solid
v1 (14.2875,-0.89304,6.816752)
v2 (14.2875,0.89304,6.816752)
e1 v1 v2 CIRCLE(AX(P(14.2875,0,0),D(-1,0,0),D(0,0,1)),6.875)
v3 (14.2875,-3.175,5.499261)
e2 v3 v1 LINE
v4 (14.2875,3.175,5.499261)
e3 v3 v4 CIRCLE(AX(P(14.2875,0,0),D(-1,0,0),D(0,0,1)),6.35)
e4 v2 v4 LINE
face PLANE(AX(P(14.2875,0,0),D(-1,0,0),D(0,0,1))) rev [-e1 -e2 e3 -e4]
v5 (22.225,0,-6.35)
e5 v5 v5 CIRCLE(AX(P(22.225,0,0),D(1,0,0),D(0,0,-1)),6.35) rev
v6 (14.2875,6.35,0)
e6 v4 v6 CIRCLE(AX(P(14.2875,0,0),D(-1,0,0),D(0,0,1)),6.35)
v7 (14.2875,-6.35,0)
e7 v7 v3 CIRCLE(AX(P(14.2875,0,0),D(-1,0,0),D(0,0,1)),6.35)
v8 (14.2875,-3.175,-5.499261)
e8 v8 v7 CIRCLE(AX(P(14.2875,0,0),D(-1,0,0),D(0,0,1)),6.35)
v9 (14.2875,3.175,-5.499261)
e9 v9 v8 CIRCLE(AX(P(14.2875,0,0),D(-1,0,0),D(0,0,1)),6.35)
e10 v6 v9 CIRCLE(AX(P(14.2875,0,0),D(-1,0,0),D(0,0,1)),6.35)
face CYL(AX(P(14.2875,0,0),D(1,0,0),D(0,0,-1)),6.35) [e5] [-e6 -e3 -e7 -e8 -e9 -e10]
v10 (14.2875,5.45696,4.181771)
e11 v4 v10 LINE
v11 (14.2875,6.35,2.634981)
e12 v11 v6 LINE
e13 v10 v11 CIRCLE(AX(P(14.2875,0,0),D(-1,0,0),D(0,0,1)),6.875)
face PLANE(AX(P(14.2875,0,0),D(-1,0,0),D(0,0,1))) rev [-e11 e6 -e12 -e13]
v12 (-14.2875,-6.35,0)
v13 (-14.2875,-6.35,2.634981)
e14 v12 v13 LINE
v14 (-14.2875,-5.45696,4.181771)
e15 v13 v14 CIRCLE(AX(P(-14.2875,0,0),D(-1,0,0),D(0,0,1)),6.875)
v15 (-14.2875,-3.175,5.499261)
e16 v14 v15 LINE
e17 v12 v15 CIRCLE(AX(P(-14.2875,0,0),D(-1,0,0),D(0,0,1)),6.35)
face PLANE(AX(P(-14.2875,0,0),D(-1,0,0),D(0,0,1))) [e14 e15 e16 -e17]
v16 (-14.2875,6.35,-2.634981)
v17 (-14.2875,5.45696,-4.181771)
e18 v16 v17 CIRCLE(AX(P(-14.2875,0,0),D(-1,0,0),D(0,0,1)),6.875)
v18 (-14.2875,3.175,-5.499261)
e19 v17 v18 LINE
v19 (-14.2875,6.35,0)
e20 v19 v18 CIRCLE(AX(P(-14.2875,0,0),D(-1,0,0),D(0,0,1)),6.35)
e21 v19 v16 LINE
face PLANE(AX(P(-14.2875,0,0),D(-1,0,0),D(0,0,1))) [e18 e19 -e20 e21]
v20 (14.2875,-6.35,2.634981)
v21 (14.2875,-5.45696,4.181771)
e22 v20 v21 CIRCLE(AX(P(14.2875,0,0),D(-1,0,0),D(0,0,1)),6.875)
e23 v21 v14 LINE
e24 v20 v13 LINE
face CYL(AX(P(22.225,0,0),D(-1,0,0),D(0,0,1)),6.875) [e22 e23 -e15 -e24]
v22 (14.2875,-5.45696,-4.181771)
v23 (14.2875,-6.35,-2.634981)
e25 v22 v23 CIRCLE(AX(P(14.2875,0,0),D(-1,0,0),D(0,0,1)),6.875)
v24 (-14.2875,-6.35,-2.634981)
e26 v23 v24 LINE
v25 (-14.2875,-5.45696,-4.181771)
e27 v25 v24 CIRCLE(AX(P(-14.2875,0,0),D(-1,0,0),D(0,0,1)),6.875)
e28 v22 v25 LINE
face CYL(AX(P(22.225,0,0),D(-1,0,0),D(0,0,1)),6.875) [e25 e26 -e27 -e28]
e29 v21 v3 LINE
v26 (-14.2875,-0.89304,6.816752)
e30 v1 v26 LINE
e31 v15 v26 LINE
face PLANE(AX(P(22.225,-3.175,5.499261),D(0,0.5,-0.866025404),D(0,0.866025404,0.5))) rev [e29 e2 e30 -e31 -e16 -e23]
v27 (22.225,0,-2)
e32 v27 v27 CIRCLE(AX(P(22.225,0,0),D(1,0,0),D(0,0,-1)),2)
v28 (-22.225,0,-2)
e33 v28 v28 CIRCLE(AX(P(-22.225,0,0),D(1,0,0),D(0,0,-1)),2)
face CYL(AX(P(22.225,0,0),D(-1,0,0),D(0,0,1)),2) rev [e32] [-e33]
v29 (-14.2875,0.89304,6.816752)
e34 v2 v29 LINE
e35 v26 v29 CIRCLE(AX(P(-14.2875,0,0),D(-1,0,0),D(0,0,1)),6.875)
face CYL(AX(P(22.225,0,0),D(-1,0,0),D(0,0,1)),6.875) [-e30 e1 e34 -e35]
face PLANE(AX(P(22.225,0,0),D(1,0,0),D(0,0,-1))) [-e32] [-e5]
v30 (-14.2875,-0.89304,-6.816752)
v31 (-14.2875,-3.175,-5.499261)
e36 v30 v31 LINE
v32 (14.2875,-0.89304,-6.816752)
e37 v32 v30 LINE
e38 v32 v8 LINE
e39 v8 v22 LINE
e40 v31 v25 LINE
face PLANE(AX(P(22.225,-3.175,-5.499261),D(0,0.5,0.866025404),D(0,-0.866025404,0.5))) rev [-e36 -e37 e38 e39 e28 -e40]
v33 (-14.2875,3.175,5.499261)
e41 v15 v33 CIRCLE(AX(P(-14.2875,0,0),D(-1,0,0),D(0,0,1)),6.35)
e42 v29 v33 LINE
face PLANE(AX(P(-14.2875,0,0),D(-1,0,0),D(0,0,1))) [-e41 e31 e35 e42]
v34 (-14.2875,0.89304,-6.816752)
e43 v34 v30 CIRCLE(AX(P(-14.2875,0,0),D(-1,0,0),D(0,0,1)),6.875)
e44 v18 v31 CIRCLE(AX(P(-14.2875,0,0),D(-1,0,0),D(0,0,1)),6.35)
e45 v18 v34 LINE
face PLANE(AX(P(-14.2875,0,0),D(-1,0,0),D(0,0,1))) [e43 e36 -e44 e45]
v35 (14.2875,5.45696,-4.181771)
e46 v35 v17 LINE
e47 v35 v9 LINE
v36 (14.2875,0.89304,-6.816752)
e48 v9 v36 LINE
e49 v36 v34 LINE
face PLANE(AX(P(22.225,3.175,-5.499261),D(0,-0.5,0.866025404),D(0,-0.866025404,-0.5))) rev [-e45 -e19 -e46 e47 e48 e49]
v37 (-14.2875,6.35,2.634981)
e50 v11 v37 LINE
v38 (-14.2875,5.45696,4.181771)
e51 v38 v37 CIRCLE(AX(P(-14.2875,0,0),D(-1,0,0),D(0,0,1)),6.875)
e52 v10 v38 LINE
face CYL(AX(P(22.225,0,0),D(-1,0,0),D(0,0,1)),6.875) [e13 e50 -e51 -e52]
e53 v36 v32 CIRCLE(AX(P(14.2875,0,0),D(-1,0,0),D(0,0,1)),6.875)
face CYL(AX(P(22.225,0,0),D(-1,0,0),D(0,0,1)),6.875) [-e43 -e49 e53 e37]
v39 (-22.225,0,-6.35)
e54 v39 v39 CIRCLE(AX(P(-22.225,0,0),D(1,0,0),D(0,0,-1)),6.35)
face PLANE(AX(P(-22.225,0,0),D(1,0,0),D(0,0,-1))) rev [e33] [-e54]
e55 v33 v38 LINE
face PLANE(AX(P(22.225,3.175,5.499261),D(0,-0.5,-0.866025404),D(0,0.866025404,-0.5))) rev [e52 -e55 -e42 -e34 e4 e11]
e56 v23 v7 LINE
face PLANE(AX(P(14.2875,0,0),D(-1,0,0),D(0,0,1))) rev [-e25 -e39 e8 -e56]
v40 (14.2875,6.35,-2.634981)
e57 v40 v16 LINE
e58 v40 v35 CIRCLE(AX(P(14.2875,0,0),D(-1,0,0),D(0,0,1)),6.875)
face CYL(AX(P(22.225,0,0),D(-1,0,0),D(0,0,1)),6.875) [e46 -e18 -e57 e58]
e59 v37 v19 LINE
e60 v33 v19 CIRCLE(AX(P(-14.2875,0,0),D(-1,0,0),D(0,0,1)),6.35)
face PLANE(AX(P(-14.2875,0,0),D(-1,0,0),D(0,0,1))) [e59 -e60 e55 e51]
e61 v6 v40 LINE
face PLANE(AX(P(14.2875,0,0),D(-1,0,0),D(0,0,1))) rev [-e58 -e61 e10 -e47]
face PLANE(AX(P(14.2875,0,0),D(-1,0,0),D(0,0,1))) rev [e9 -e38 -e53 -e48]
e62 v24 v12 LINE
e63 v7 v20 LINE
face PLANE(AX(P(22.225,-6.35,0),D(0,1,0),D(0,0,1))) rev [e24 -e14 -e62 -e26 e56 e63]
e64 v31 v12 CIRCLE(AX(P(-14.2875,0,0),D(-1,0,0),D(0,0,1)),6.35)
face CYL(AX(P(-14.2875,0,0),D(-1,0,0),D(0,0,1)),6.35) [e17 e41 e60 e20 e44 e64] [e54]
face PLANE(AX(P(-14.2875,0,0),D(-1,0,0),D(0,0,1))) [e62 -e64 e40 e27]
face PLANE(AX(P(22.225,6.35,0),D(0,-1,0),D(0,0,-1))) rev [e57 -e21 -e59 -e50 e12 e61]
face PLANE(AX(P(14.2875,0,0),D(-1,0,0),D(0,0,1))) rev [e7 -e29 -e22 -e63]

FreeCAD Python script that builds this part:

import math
import FreeCAD as App
import Part
import Sketcher
from FreeCAD import Vector
Q = App.Units.Quantity

doc = App.newDocument("Part")
body = doc.addObject("PartDesign::Body", "Body")

# Sketch on YZ plane
sketch1 = doc.addObject("Sketcher::SketchObject", "Sketch")
body.addObject(sketch1)
sketch1.AttachmentSupport = (doc.YZ_Plane, [""])
sketch1.MapMode = "FlatFace"
sketch1.addGeometry(Part.ArcOfCircle(Part.Circle(Vector(0, 0, 0), Vector(0, 0, 1), 6.875), math.radians(-90), math.radians(-82.536379)), False)
sketch1.addGeometry(Part.LineSegment(Vector(0.89304, -6.816752, 0), Vector(5.45696, -4.181771, 0)), False)
sketch1.addGeometry(Part.ArcOfCircle(Part.Circle(Vector(0, 0, 0), Vector(0, 0, 1), 6.875), math.radians(-37.463621), math.radians(-22.536379)), False)
sketch1.addGeometry(Part.LineSegment(Vector(6.35, -2.634981, 0), Vector(6.35, 2.634981, 0)), False)
sketch1.addGeometry(Part.ArcOfCircle(Part.Circle(Vector(0, 0, 0), Vector(0, 0, 1), 6.875), math.radians(22.536379), math.radians(37.463621)), False)
sketch1.addGeometry(Part.LineSegment(Vector(5.45696, 4.181771, 0), Vector(0.89304, 6.816752, 0)), False)
sketch1.addGeometry(Part.ArcOfCircle(Part.Circle(Vector(0, 0, 0), Vector(0, 0, 1), 6.875), math.radians(82.536379), math.radians(97.463621)), False)
sketch1.addGeometry(Part.LineSegment(Vector(-0.89304, 6.816752, 0), Vector(-5.45696, 4.181771, 0)), False)
sketch1.addGeometry(Part.ArcOfCircle(Part.Circle(Vector(0, 0, 0), Vector(0, 0, 1), 6.875), math.radians(142.536379), math.radians(157.463621)), False)
sketch1.addGeometry(Part.LineSegment(Vector(-6.35, 2.634981, 0), Vector(-6.35, -2.634981, 0)), False)
sketch1.addGeometry(Part.ArcOfCircle(Part.Circle(Vector(0, 0, 0), Vector(0, 0, 1), 6.875), math.radians(-157.463621), math.radians(-142.536379)), False)
sketch1.addGeometry(Part.LineSegment(Vector(-5.45696, -4.181771, 0), Vector(-0.89304, -6.816752, 0)), False)
sketch1.addGeometry(Part.ArcOfCircle(Part.Circle(Vector(0, 0, 0), Vector(0, 0, 1), 6.875), math.radians(-97.463621), math.radians(-90)), False)
sketch1.addGeometry(Part.Circle(Vector(0, 0, 0), Vector(0, 0, 1), 2), False)
sketch1.addConstraint(Sketcher.Constraint("Coincident", 0, 2, 1, 1))
sketch1.addConstraint(Sketcher.Constraint("Coincident", 1, 2, 2, 1))
sketch1.addConstraint(Sketcher.Constraint("Coincident", 2, 2, 3, 1))
sketch1.addConstraint(Sketcher.Constraint("Coincident", 3, 2, 4, 1))
sketch1.addConstraint(Sketcher.Constraint("Coincident", 4, 2, 5, 1))
sketch1.addConstraint(Sketcher.Constraint("Coincident", 5, 2, 6, 1))
sketch1.addConstraint(Sketcher.Constraint("Coincident", 6, 2, 7, 1))
sketch1.addConstraint(Sketcher.Constraint("Coincident", 7, 2, 8, 1))
sketch1.addConstraint(Sketcher.Constraint("Coincident", 8, 2, 9, 1))
sketch1.addConstraint(Sketcher.Constraint("Coincident", 9, 2, 10, 1))
sketch1.addConstraint(Sketcher.Constraint("Coincident", 10, 2, 11, 1))
sketch1.addConstraint(Sketcher.Constraint("Coincident", 11, 2, 12, 1))
sketch1.addConstraint(Sketcher.Constraint("Tangent", 12, 2, 0, 1))
sketch1.addConstraint(Sketcher.Constraint("Vertical", 3))
sketch1.addConstraint(Sketcher.Constraint("Vertical", 9))
sketch1.addConstraint(Sketcher.Constraint("Coincident", 0, 3, -1, 1))
sketch1.addConstraint(Sketcher.Constraint("Coincident", 2, 3, -1, 1))
sketch1.addConstraint(Sketcher.Constraint("Coincident", 4, 3, -1, 1))
sketch1.addConstraint(Sketcher.Constraint("Coincident", 6, 3, -1, 1))
sketch1.addConstraint(Sketcher.Constraint("Coincident", 8, 3, -1, 1))
sketch1.addConstraint(Sketcher.Constraint("Coincident", 10, 3, -1, 1))
sketch1.addConstraint(Sketcher.Constraint("Coincident", 13, 3, -1, 1))
sketch1.addConstraint(Sketcher.Constraint("Equal", 0, 2))
sketch1.addConstraint(Sketcher.Constraint("Equal", 2, 4))
sketch1.addConstraint(Sketcher.Constraint("Equal", 4, 6))
sketch1.addConstraint(Sketcher.Constraint("Equal", 6, 8))
sketch1.addConstraint(Sketcher.Constraint("Equal", 8, 10))
sketch1.addConstraint(Sketcher.Constraint("Equal", 10, 12))
sketch1.addConstraint(Sketcher.Constraint("PointOnObject", 12, 2, -2))
sketch1.addConstraint(Sketcher.Constraint("Parallel", 1, 7))
sketch1.addConstraint(Sketcher.Constraint("Parallel", 5, 11))
sketch1.addConstraint(Sketcher.Constraint("Horizontal", 5, 2, 6, 2))
sketch1.addConstraint(Sketcher.Constraint("Horizontal", 4, 2, 7, 2))
sketch1.addConstraint(Sketcher.Constraint("Horizontal", 3, 2, 8, 2))
sketch1.addConstraint(Sketcher.Constraint("Horizontal", 1, 2, 10, 2))
sketch1.addConstraint(Sketcher.Constraint("Vertical", 1, 2, 4, 2))
sketch1.addConstraint(Sketcher.Constraint("Angle", 1, Q("30 deg")))
sketch1.addConstraint(Sketcher.Constraint("Diameter", 13, 4.0))
sketch1.addConstraint(Sketcher.Constraint("DistanceX", -1, 1, 2, 2, Q("0.25 in")))
sketch1.addConstraint(Sketcher.Constraint("Radius", 0, 6.875))
sketch1.addConstraint(Sketcher.Constraint("Distance", 1, 5.269962))
pad1 = doc.addObject("PartDesign::Pad", "Pad")
body.addObject(pad1)
pad1.Profile = sketch1
pad1.Length = Q("1.75 in")
pad1.Midplane = True

# Sketch on YZ plane
sketch2 = doc.addObject("Sketcher::SketchObject", "Sketch001")
body.addObject(sketch2)
sketch2.AttachmentSupport = (doc.YZ_Plane, [""])
sketch2.MapMode = "FlatFace"
sketch2.AttachmentOffset = App.Placement(Vector(0, 0, -0.875 * 25.4), App.Rotation())
sketch2.addGeometry(Part.Circle(Vector(0, 0, 0), Vector(0, 0, 1), 8.89), False)
sketch2.addGeometry(Part.Circle(Vector(0, 0, 0), Vector(0, 0, 1), 6.35), False)
sketch2.addConstraint(Sketcher.Constraint("Coincident", 0, 3, -1, 1))
sketch2.addConstraint(Sketcher.Constraint("Coincident", 1, 3, -1, 1))
sketch2.addConstraint(Sketcher.Constraint("Diameter", 0, Q("0.7 in")))
sketch2.addConstraint(Sketcher.Constraint("Diameter", 1, Q("0.5 in")))
pocket1 = doc.addObject("PartDesign::Pocket", "Pocket")
body.addObject(pocket1)
pocket1.Profile = sketch2
pocket1.Length = Q("0.3125 in")
pocket1.Reversed = True
doc.recompute()

mirrored = doc.addObject("PartDesign::Mirrored", "Mirrored")
body.addObject(mirrored)
mirrored.Originals = [pocket1]
mirrored.MirrorPlane = (doc.YZ_Plane, [""])
body.Tip = mirrored

doc.recompute()
